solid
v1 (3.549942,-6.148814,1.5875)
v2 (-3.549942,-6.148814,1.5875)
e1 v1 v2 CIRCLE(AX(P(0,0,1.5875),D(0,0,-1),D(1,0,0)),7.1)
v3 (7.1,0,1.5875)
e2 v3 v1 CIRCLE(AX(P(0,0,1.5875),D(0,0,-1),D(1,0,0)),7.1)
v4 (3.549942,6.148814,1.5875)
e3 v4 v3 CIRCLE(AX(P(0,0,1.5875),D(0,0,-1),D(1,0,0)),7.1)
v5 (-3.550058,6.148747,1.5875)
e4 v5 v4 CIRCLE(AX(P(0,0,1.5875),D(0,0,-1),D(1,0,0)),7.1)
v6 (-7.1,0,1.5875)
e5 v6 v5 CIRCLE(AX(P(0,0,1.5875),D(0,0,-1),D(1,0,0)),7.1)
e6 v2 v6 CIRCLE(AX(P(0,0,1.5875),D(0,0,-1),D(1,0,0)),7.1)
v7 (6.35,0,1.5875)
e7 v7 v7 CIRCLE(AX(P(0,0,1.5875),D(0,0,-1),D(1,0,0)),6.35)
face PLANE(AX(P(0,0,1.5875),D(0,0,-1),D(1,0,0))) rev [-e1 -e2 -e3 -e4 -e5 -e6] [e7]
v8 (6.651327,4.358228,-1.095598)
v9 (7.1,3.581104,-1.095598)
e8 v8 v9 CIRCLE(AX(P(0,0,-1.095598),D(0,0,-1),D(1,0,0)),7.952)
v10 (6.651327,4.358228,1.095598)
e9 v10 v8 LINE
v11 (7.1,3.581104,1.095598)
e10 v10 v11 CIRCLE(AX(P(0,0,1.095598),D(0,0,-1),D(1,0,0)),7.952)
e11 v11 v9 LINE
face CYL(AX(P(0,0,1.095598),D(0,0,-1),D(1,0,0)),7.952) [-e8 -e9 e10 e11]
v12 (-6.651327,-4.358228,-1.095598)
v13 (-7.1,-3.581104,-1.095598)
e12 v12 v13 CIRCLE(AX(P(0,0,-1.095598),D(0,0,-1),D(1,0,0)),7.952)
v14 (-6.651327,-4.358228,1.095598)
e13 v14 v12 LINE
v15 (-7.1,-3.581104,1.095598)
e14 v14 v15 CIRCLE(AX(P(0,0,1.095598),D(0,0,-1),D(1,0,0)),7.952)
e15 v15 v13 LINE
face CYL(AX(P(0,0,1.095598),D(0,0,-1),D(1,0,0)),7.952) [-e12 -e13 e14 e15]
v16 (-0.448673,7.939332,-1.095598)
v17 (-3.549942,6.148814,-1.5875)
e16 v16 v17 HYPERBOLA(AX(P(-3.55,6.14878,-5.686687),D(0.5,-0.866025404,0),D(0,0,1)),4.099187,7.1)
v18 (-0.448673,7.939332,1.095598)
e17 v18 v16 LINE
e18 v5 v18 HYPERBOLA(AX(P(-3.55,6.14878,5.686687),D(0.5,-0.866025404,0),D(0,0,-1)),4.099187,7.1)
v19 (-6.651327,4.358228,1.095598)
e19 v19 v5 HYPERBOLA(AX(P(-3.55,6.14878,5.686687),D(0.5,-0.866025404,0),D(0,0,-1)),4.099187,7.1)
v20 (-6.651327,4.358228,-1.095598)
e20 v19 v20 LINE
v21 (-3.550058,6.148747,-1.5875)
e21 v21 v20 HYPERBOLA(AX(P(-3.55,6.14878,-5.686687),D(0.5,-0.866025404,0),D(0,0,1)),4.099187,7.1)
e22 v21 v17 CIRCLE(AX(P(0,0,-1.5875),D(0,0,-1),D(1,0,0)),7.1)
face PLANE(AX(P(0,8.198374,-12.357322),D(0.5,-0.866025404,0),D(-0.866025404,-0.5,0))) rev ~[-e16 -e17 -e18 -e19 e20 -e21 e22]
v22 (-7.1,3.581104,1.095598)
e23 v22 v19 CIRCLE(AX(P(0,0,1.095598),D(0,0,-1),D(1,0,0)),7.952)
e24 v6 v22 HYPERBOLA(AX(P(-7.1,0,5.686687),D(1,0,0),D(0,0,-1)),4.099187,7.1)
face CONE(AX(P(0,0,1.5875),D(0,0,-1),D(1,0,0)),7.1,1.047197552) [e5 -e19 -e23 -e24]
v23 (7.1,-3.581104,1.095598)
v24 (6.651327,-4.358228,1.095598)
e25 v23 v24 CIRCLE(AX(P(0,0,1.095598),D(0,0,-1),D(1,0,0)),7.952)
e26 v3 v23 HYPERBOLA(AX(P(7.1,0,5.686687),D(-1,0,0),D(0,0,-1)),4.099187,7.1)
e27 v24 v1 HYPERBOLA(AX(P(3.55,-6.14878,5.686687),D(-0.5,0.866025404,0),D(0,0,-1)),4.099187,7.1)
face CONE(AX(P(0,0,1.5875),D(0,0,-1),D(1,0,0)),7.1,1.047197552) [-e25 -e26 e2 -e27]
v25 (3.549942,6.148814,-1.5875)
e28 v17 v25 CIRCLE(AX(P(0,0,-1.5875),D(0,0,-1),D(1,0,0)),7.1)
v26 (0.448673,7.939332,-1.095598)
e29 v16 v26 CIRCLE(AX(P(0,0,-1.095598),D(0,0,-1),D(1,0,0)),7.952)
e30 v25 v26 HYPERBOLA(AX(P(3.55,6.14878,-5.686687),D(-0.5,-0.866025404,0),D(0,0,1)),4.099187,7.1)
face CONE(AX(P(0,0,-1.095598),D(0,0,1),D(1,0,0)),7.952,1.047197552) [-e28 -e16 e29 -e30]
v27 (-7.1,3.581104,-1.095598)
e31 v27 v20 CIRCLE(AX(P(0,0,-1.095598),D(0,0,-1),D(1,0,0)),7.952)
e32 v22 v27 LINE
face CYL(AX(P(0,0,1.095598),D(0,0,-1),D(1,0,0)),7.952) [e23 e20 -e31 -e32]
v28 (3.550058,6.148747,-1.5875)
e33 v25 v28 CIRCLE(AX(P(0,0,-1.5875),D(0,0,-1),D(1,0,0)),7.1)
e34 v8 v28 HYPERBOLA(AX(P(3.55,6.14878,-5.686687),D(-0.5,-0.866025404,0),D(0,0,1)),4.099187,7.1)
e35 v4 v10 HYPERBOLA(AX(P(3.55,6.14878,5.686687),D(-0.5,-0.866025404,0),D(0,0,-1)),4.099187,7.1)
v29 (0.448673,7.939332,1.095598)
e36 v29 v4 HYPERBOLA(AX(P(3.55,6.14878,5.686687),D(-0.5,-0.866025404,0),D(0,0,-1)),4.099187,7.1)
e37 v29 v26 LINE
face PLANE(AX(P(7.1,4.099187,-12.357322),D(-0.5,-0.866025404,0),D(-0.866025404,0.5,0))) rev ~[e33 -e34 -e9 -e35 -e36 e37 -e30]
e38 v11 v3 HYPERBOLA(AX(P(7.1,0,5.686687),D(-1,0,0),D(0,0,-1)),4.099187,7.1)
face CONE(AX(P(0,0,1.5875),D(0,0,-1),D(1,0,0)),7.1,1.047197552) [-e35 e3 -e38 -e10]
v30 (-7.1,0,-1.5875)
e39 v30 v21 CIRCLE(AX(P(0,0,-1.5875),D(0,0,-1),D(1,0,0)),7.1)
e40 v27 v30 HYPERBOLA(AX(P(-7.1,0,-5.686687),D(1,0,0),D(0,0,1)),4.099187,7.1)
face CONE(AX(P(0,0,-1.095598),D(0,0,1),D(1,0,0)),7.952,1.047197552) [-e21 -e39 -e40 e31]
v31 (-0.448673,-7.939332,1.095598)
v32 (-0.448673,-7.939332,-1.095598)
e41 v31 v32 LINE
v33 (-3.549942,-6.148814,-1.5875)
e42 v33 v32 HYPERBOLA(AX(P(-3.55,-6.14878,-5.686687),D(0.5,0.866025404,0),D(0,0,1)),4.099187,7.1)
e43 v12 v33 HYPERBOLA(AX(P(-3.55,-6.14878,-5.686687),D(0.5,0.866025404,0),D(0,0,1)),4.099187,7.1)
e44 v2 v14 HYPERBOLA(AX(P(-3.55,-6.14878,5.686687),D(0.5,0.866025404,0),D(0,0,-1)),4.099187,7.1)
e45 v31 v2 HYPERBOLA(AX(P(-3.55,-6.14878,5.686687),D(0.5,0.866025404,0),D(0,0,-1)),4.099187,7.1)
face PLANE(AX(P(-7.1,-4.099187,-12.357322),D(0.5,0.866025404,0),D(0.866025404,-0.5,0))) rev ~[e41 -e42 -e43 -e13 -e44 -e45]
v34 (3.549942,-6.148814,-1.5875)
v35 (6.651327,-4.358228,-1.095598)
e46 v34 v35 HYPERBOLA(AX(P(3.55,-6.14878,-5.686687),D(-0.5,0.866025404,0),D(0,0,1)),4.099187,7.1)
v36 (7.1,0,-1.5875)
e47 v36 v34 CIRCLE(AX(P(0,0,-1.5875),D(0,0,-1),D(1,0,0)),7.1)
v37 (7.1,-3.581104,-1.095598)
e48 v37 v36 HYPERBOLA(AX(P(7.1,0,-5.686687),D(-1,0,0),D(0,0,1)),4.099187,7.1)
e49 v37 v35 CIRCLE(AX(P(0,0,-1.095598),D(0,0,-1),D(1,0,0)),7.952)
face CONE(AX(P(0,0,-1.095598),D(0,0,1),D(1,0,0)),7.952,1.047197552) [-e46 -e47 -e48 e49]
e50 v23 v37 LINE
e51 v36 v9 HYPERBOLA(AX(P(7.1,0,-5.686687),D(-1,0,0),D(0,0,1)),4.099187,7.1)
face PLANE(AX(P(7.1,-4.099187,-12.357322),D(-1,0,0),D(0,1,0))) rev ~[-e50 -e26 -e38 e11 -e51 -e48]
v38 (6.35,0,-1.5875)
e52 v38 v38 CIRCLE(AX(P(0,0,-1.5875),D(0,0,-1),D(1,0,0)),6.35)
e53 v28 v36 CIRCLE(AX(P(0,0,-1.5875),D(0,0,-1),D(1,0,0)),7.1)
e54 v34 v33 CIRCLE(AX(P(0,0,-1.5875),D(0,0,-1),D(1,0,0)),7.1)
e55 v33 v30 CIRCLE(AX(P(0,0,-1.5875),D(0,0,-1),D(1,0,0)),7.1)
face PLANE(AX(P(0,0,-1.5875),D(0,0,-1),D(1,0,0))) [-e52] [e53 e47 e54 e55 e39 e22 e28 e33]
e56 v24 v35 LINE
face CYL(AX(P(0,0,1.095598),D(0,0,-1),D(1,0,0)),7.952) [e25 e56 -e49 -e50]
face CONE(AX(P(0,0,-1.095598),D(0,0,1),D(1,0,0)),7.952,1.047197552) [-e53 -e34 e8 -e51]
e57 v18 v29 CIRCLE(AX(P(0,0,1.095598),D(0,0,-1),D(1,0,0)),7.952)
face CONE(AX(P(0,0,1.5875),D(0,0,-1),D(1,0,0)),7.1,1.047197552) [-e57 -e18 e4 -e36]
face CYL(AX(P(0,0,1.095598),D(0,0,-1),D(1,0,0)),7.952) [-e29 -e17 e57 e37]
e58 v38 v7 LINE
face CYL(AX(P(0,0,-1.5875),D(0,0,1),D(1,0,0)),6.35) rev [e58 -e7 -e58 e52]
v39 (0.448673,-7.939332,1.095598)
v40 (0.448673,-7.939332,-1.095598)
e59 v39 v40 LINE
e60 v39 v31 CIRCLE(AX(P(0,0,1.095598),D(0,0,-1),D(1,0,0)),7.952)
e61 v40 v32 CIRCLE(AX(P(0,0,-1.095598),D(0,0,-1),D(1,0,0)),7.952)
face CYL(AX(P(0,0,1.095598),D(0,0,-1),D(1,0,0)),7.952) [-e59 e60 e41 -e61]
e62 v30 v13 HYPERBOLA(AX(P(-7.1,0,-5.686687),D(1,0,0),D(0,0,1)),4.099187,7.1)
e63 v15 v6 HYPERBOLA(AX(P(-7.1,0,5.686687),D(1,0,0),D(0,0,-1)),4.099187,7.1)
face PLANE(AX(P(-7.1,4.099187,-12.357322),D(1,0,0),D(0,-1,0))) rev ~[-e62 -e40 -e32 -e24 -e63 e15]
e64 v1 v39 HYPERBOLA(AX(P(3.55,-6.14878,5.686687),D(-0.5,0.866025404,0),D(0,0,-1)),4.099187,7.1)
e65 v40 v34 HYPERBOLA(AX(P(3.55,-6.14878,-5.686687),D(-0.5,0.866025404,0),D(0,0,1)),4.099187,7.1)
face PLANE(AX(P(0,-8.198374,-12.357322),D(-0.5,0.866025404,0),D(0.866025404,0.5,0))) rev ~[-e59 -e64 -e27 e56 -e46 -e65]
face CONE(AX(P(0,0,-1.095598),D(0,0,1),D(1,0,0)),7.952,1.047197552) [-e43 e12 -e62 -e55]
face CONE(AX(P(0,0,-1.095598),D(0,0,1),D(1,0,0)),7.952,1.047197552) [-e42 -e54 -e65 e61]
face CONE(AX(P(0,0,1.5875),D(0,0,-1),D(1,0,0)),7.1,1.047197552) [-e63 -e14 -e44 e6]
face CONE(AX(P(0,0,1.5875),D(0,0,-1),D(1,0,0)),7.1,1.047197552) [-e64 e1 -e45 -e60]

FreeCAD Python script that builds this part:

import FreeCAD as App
import Part
import Sketcher
from FreeCAD import Vector
Q = App.Units.Quantity

doc = App.newDocument("Part")
body = doc.addObject("PartDesign::Body", "Body")

# Sketch on YZ plane
sketch1 = body.newObject("Sketcher::SketchObject", "Sketch")
sketch1.AttachmentSupport = (doc.getObject("YZ_Plane"), [""])
sketch1.MapMode = "FlatFace"
sketch1.addGeometry([
    Part.LineSegment(Vector(7.952, 1.095598, 0), Vector(7.1, 1.5875, 0)),  # 0
    Part.LineSegment(Vector(7.1, 1.5875, 0), Vector(6.35, 1.5875, 0)),  # 1
    Part.LineSegment(Vector(6.35, 1.5875, 0), Vector(6.35, -1.5875, 0)),  # 2
    Part.LineSegment(Vector(6.35, -1.5875, 0), Vector(7.1, -1.5875, 0)),  # 3
    Part.LineSegment(Vector(7.1, -1.5875, 0), Vector(7.952, -1.095598, 0)),  # 4
    Part.LineSegment(Vector(7.952, -1.095598, 0), Vector(7.952, 1.095598, 0)),  # 5
], False)
sketch1.addConstraint([
    Sketcher.Constraint("Coincident", 0, 2, 1, 1),
    Sketcher.Constraint("Coincident", 1, 2, 2, 1),
    Sketcher.Constraint("Coincident", 2, 2, 3, 1),
    Sketcher.Constraint("Coincident", 3, 2, 4, 1),
    Sketcher.Constraint("Coincident", 4, 2, 5, 1),
    Sketcher.Constraint("Coincident", 5, 2, 0, 1),
    Sketcher.Constraint("Horizontal", 1),
    Sketcher.Constraint("Vertical", 2),
    Sketcher.Constraint("Horizontal", 3),
    Sketcher.Constraint("Vertical", 5),
    Sketcher.Constraint("Symmetric", 0, 2, 3, 2, -1),
    Sketcher.Constraint("Equal", 0, 4),
    Sketcher.Constraint("Angle", 0, Q("150 deg")),
    Sketcher.Constraint("DistanceY", 2, 2, 2, 1, Q("0.125 in")),
    Sketcher.Constraint("DistanceX", -1, 1, 1, 2, Q("0.25 in")),
    Sketcher.Constraint("DistanceX", 1, 2, 1, 1, 0.75),
    Sketcher.Constraint("DistanceX", -1, 1, 4, 2, 7.952),
])
revolution = body.newObject("PartDesign::Revolution", "Revolution")
revolution.Profile = sketch1
revolution.ReferenceAxis = (sketch1, ["V_Axis"])
revolution.Angle = 360

# Sketch on XY plane
sketch2 = body.newObject("Sketcher::SketchObject", "Sketch001")
sketch2.AttachmentSupport = (doc.getObject("XY_Plane"), [""])
sketch2.MapMode = "FlatFace"
sketch2.addGeometry([
    Part.LineSegment(Vector(-11.223, 11.223, 0), Vector(-11.223, -11.223, 0)),  # 0
    Part.LineSegment(Vector(-11.223, -11.223, 0), Vector(11.223, -11.223, 0)),  # 1
    Part.LineSegment(Vector(11.223, -11.223, 0), Vector(11.223, 11.223, 0)),  # 2
    Part.LineSegment(Vector(11.223, 11.223, 0), Vector(-11.223, 11.223, 0)),  # 3
    Part.LineSegment(Vector(-7.1, 4.099187, 0), Vector(0, 8.198374, 0)),  # 4
    Part.LineSegment(Vector(0, 8.198374, 0), Vector(7.1, 4.099187, 0)),  # 5
    Part.LineSegment(Vector(7.1, 4.099187, 0), Vector(7.1, -4.099187, 0)),  # 6
    Part.LineSegment(Vector(7.1, -4.099187, 0), Vector(0, -8.198374, 0)),  # 7
    Part.LineSegment(Vector(0, -8.198374, 0), Vector(-7.1, -4.099187, 0)),  # 8
    Part.LineSegment(Vector(-7.1, -4.099187, 0), Vector(-7.1, 4.099187, 0)),  # 9
], False)
sketch2.addConstraint([
    Sketcher.Constraint("Coincident", 0, 2, 1, 1),
    Sketcher.Constraint("Coincident", 1, 2, 2, 1),
    Sketcher.Constraint("Coincident", 2, 2, 3, 1),
    Sketcher.Constraint("Coincident", 3, 2, 0, 1),
    Sketcher.Constraint("Coincident", 4, 2, 5, 1),
    Sketcher.Constraint("Coincident", 5, 2, 6, 1),
    Sketcher.Constraint("Coincident", 6, 2, 7, 1),
    Sketcher.Constraint("Coincident", 7, 2, 8, 1),
    Sketcher.Constraint("Coincident", 8, 2, 9, 1),
    Sketcher.Constraint("Coincident", 9, 2, 4, 1),
    Sketcher.Constraint("Vertical", 0),
    Sketcher.Constraint("Horizontal", 1),
    Sketcher.Constraint("Vertical", 2),
    Sketcher.Constraint("Horizontal", 3),
    Sketcher.Constraint("Vertical", 6),
    Sketcher.Constraint("Vertical", 9),
    Sketcher.Constraint("Symmetric", 0, 2, 2, 2, -1, 1),
    Sketcher.Constraint("Symmetric", 4, 2, 7, 2, -1, 1),
    Sketcher.Constraint("Symmetric", 5, 2, 8, 2, -1, 1),
    Sketcher.Constraint("PointOnObject", 4, 2, -2),
    Sketcher.Constraint("Parallel", 4, 7),
    Sketcher.Constraint("Horizontal", 6, 2, 8, 2),
    Sketcher.Constraint("Equal", 3, 0),
    Sketcher.Constraint("Angle", 4, Q("30 deg")),
    Sketcher.Constraint("DistanceX", 1, 1, 1, 2, 22.446),
    Sketcher.Constraint("DistanceX", -1, 1, 5, 2, 7.1),
    Sketcher.Constraint("DistanceY", 6, 2, 6, 1, 8.198374),
])
pocket1 = body.newObject("PartDesign::Pocket", "Pocket")
pocket1.Profile = sketch2
pocket1.Type = "ThroughAll"
pocket1.Midplane = True

doc.recompute()
